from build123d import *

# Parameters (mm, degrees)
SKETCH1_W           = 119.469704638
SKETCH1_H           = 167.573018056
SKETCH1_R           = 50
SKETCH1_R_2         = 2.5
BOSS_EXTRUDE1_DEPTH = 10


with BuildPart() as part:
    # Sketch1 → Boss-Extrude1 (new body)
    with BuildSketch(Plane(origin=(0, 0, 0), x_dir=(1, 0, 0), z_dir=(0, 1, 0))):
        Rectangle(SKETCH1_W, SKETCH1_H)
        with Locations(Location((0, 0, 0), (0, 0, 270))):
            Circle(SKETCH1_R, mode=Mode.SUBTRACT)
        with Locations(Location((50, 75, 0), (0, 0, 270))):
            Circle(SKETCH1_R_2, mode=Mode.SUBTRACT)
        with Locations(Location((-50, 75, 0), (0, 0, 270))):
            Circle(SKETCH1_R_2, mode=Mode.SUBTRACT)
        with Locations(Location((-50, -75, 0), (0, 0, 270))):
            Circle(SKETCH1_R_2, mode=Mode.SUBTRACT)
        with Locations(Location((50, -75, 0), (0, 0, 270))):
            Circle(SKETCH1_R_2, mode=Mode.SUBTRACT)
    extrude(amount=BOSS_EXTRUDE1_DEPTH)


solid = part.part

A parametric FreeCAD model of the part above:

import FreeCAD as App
import Part
import Sketcher


def add_polygon(sketch, points):
    """Adds a closed chain of lines whose ends are joined by coincident constraints."""
    first, n = sketch.GeometryCount, len(points)
    for a, b in zip(points, points[1:] + points[:1]):
        sketch.addGeometry(Part.LineSegment(App.Vector(*a, 0), App.Vector(*b, 0)), False)
    for i in range(n):
        sketch.addConstraint(Sketcher.Constraint("Coincident", first + i, 2, first + (i + 1) % n, 1))

doc = App.newDocument("Part")
params = doc.addObject("Spreadsheet::Sheet", "Params")
for row, (alias, value) in enumerate([
    ("sketch1_diameter", "5 mm"),
    ("sketch1_diameter2", "100 mm"),
    ("pad1_length", "10 mm"),
], start=1):
    params.set(f"A{row}", alias)
    params.set(f"B{row}", "=" + value)
    params.setAlias(f"B{row}", alias)

body = doc.addObject("PartDesign::Body", "Body")

sketch1 = doc.addObject("Sketcher::SketchObject", "Sketch")
body.addObject(sketch1)
sketch1.AttachmentSupport = (doc.XZ_Plane, [""])
sketch1.MapMode = "FlatFace"
add_polygon(sketch1, [(-59.734852, -83.786509), (-59.734852, 83.786509), (59.734852, 83.786509), (59.734852, -83.786509)])
sketch1.addGeometry(Part.Circle(App.Vector(-50, 75, 0), App.Vector(0, 0, 1), 2.5), False)
sketch1.addGeometry(Part.Circle(App.Vector(50, 75, 0), App.Vector(0, 0, 1), 2.5), False)
sketch1.addGeometry(Part.Circle(App.Vector(-50, -75, 0), App.Vector(0, 0, 1), 2.5), False)
sketch1.addGeometry(Part.Circle(App.Vector(0, 0, 0), App.Vector(0, 0, 1), 50), False)
sketch1.addGeometry(Part.Circle(App.Vector(50, -75, 0), App.Vector(0, 0, 1), 2.5), False)
sketch1.addConstraint([
    Sketcher.Constraint("Vertical", 0),
    Sketcher.Constraint("Horizontal", 1),
    Sketcher.Constraint("Vertical", 2),
    Sketcher.Constraint("Horizontal", 3),
    Sketcher.Constraint("Coincident", 7, 3, -1, 1),
    Sketcher.Constraint("Equal", 4, 5),
    Sketcher.Constraint("Equal", 5, 6),
    Sketcher.Constraint("Equal", 6, 8),
    Sketcher.Constraint("Symmetric", 5, 3, 6, 3, -1, 1),
    Sketcher.Constraint("Symmetric", 4, 3, 8, 3, -1, 1),
    Sketcher.Constraint("Symmetric", 0, 2, 2, 2, -1, 1),
    Sketcher.Constraint("Symmetric", 4, 3, 5, 3, -2),
    Sketcher.Constraint("Diameter", 4, 5.0),
    Sketcher.Constraint("Diameter", 7, 100.0),
    Sketcher.Constraint("DistanceX", 4, 3, -1, 1, 50.0),
    Sketcher.Constraint("DistanceY", -1, 1, 4, 3, 75.0),
    Sketcher.Constraint("DistanceY", 0, 1, 0, 2, 167.573018),
    Sketcher.Constraint("DistanceX", 1, 1, 1, 2, 119.469705),
])
sketch1.setExpression("Constraints[16]", "Params.sketch1_diameter")
sketch1.setExpression("Constraints[17]", "Params.sketch1_diameter2")
pad1 = doc.addObject("PartDesign::Pad", "Pad")
body.addObject(pad1)
pad1.Profile = sketch1
pad1.setExpression("Length", "Params.pad1_length")
pad1.Reversed = True

doc.recompute()
